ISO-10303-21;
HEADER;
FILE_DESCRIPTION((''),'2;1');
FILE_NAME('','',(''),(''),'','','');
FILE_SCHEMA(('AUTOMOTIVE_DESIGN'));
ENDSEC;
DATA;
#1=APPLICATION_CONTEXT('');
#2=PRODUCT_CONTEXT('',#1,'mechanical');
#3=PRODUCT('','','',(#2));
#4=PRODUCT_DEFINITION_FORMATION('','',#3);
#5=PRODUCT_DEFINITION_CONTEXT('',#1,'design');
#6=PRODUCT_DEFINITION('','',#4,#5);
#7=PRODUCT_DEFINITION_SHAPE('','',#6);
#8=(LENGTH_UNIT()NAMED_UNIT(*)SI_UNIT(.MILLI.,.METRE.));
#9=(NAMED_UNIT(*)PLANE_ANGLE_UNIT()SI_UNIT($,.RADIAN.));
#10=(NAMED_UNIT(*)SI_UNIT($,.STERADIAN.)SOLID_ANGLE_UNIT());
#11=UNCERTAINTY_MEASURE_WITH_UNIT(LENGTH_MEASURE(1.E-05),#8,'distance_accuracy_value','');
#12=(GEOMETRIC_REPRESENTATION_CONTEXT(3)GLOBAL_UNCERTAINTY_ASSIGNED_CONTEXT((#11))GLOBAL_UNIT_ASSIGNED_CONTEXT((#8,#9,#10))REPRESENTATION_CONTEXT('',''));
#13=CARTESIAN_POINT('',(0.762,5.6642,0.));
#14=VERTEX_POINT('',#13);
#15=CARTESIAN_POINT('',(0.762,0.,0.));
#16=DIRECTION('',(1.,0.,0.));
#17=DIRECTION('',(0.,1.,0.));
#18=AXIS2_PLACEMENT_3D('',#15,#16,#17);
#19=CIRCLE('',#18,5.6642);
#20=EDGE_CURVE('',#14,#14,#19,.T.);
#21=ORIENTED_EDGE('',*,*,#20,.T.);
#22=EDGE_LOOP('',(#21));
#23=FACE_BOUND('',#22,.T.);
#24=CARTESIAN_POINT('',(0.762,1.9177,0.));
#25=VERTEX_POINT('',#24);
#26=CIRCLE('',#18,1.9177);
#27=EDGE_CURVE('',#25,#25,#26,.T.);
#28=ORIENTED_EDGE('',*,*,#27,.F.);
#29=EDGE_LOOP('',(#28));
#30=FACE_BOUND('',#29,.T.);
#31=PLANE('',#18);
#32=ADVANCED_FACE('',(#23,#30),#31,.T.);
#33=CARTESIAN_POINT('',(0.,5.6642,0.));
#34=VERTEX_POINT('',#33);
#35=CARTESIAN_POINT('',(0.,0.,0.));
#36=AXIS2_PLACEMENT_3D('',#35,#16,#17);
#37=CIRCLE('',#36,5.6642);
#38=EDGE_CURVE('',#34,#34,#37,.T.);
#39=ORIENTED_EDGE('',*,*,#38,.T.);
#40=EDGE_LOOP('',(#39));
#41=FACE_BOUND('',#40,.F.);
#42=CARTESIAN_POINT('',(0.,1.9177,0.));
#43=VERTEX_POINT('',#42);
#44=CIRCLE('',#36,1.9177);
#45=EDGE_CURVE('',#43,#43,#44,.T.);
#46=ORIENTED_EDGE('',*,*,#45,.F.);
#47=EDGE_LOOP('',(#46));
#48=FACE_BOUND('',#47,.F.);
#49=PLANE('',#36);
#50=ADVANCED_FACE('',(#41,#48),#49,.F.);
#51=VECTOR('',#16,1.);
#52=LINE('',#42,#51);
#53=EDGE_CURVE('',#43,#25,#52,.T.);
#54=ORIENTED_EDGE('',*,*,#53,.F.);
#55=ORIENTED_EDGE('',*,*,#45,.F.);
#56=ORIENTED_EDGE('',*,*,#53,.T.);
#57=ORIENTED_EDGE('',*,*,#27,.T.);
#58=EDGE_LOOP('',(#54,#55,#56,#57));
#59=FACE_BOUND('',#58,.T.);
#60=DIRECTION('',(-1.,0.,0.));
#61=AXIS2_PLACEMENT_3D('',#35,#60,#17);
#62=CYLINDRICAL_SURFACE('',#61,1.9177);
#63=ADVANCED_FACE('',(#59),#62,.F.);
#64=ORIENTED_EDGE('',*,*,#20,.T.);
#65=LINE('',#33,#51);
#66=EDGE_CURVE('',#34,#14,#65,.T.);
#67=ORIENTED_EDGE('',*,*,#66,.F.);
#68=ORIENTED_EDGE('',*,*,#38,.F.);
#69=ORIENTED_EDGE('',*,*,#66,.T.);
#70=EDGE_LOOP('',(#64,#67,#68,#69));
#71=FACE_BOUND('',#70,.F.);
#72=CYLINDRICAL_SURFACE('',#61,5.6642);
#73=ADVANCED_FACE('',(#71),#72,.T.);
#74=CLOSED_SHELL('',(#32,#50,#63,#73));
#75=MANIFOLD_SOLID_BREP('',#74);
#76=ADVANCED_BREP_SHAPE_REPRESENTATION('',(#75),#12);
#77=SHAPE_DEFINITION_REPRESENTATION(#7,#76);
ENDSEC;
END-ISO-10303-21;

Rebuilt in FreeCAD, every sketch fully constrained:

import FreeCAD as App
import Part
import Sketcher

V = App.Vector
Q = App.Units.Quantity

doc = App.newDocument("Part")
params = doc.addObject("Spreadsheet::Sheet", "Params")
for row, (alias, value) in enumerate([
    ("sketch1_diameter", "0.446 in"),
    ("sketch1_diameter2", "0.151 in"),
    ("pad1_length", "0.03 in"),
], start=1):
    params.set(f"A{row}", alias)
    params.set(f"B{row}", "=" + value)
    params.setAlias(f"B{row}", alias)

body = doc.addObject("PartDesign::Body", "Body")

sketch1 = body.newObject("Sketcher::SketchObject", "Sketch")
sketch1.AttachmentSupport = (doc.getObject("YZ_Plane"), [""])
sketch1.MapMode = "FlatFace"
sketch1.addGeometry([
    Part.Circle(V(0, 0, 0), V(0, 0, 1), 5.6642),
    Part.Circle(V(0, 0, 0), V(0, 0, 1), 1.9177),
], False)
sketch1.addConstraint([
    Sketcher.Constraint("Coincident", 0, 3, -1, 1),
    Sketcher.Constraint("Coincident", 1, 3, -1, 1),
    Sketcher.Constraint("Diameter", 0, Q("0.446 in")),
    Sketcher.Constraint("Diameter", 1, Q("0.151 in")),
])
sketch1.setExpression("Constraints[2]", "Params.sketch1_diameter")
sketch1.setExpression("Constraints[3]", "Params.sketch1_diameter2")
pad1 = body.newObject("PartDesign::Pad", "Pad")
pad1.Profile = sketch1
pad1.setExpression("Length", "Params.pad1_length")

doc.recompute()
